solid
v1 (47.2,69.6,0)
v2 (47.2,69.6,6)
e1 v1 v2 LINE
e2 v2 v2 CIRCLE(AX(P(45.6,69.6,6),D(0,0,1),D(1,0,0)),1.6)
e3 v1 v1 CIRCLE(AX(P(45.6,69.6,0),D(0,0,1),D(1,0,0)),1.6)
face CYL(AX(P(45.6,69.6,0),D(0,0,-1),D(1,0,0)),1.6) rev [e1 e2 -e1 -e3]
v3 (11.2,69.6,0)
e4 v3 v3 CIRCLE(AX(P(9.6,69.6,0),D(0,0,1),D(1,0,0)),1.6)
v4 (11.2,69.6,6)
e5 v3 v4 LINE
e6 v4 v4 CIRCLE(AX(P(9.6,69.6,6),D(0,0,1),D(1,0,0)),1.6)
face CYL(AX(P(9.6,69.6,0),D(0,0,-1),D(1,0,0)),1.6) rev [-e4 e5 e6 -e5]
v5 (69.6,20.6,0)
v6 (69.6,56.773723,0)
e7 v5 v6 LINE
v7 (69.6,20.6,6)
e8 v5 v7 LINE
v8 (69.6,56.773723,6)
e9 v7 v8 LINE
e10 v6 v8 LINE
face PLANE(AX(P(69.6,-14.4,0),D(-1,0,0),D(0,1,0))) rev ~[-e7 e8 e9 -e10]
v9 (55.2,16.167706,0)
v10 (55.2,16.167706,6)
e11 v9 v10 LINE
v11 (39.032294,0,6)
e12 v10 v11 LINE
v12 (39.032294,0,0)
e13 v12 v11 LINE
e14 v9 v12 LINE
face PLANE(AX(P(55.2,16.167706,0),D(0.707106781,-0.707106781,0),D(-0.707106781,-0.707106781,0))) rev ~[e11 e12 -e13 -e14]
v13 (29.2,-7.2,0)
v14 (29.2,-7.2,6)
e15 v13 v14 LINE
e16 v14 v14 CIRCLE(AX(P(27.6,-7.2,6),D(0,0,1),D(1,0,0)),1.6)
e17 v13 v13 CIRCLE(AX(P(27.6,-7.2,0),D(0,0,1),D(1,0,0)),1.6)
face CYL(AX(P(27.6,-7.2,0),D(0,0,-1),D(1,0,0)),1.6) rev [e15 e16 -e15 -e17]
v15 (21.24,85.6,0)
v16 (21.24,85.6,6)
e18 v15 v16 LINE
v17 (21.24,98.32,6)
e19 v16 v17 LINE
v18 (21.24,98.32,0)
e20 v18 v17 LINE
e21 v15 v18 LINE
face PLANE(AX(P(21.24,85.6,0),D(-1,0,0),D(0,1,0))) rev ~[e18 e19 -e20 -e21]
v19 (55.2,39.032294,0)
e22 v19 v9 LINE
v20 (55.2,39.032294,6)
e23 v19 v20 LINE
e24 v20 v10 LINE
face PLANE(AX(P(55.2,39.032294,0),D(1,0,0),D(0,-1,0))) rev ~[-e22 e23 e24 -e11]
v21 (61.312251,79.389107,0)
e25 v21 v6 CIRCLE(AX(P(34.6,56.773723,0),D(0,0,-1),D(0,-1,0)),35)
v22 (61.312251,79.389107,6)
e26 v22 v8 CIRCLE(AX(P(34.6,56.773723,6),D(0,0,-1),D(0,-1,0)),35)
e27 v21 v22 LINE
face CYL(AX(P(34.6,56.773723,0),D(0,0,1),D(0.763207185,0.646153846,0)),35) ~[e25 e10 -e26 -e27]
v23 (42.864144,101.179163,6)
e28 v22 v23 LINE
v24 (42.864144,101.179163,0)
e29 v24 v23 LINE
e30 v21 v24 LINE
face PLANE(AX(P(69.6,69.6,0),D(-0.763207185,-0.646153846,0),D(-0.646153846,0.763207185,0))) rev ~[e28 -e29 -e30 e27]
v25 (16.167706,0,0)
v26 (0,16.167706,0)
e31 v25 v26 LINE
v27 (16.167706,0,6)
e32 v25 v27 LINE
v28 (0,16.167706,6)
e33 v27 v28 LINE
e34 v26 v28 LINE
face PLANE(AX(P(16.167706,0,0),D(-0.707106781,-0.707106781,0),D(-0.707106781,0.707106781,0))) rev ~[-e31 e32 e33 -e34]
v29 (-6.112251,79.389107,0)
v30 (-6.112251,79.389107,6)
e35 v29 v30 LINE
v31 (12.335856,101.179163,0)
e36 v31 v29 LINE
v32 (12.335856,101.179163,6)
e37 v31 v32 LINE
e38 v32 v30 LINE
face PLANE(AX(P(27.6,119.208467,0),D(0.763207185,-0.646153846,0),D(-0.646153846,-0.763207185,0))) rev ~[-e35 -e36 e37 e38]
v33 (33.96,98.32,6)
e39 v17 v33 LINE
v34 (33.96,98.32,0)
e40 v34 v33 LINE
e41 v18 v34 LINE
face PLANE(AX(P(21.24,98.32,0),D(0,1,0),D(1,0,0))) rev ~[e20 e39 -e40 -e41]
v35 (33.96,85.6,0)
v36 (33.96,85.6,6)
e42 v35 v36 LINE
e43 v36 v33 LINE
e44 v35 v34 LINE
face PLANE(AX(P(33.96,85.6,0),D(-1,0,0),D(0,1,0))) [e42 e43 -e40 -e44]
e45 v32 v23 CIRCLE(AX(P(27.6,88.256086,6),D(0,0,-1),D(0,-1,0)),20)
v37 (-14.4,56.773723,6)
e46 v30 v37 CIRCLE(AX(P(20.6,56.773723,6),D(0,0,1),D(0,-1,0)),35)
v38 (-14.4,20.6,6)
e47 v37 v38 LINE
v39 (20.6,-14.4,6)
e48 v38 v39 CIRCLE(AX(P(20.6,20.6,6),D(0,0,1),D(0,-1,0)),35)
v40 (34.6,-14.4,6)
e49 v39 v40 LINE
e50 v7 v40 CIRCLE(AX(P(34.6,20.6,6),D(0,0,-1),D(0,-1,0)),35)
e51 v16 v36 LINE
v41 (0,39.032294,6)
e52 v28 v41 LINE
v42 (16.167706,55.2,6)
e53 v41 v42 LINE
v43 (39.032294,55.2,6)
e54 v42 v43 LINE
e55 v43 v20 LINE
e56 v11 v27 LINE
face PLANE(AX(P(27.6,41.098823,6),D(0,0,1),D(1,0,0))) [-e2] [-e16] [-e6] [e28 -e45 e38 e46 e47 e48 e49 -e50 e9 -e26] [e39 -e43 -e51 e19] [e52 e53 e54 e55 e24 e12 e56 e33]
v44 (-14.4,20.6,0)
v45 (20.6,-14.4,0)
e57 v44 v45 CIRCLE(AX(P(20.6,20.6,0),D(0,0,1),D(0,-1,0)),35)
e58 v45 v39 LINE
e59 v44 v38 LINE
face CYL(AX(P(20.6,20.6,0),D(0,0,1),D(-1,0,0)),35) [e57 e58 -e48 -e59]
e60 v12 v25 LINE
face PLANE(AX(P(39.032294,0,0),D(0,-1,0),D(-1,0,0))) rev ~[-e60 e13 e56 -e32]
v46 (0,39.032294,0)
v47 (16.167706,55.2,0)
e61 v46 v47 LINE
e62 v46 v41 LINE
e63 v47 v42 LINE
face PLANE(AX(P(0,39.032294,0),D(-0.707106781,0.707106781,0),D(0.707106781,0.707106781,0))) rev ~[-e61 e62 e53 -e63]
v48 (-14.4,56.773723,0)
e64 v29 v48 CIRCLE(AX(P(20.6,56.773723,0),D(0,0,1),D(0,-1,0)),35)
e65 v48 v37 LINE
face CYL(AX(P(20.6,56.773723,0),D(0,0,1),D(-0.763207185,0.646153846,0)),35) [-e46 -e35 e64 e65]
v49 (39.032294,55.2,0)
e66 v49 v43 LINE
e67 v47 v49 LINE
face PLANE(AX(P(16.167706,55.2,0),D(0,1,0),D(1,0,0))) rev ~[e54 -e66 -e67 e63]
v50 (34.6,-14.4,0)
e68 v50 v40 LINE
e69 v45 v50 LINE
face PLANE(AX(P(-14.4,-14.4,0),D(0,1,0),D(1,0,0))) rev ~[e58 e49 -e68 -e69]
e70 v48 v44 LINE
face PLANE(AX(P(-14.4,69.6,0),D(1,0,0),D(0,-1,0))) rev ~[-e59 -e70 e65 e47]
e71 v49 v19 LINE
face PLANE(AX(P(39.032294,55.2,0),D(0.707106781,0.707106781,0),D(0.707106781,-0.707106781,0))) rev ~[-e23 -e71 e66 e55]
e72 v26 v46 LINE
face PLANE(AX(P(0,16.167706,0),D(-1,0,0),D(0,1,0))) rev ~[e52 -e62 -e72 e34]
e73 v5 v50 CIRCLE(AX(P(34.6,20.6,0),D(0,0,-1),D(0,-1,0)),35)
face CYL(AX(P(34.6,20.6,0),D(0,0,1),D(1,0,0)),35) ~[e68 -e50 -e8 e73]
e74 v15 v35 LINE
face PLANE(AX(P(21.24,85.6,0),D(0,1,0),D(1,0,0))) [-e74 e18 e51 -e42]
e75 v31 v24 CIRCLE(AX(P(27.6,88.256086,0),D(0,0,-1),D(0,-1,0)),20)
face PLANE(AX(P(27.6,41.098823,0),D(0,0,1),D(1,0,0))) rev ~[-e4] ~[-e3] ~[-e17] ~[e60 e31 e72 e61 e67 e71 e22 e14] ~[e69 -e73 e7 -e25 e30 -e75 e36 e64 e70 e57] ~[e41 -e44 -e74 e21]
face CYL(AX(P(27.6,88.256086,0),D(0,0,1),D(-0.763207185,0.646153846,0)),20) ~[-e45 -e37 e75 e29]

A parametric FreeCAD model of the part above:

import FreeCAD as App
import Part
import Sketcher
from FreeCAD import Vector


def edges_at(feature, points):
    """Names of the edges that pass closest to the given points."""
    edges = feature.Shape.Edges
    near = lambda p: min(range(len(edges)), key=lambda i: edges[i].distToShape(Part.Vertex(*p))[0])
    return sorted({f"Edge{near(p) + 1}" for p in points})

doc = App.newDocument("Part")
body = doc.addObject("PartDesign::Body", "Body")

# Sketch on XY plane
sketch1 = body.newObject("Sketcher::SketchObject", "Sketch")
sketch1.AttachmentSupport = (doc.getObject("XY_Plane"), [""])
sketch1.MapMode = "FlatFace"
sketch1.addGeometry([
    Part.LineSegment(Vector(27.6, 119.208467, 0), Vector(-14.4, 69.6, 0)),  # 0
    Part.LineSegment(Vector(-14.4, 69.6, 0), Vector(-14.4, -14.4, 0)),  # 1
    Part.LineSegment(Vector(-14.4, -14.4, 0), Vector(69.6, -14.4, 0)),  # 2
    Part.LineSegment(Vector(69.6, -14.4, 0), Vector(69.6, 69.6, 0)),  # 3
    Part.LineSegment(Vector(69.6, 69.6, 0), Vector(27.6, 119.208467, 0)),  # 4
    Part.Circle(Vector(27.6, -7.2, 0), Vector(0, 0, 1), 1.6),  # 5
    Part.LineSegment(Vector(39.032294, 0, 0), Vector(16.167706, 0, 0)),  # 6
    Part.LineSegment(Vector(16.167706, 0, 0), Vector(0, 16.167706, 0)),  # 7
    Part.LineSegment(Vector(0, 16.167706, 0), Vector(0, 39.032294, 0)),  # 8
    Part.LineSegment(Vector(0, 39.032294, 0), Vector(16.167706, 55.2, 0)),  # 9
    Part.LineSegment(Vector(16.167706, 55.2, 0), Vector(39.032294, 55.2, 0)),  # 10
    Part.LineSegment(Vector(39.032294, 55.2, 0), Vector(55.2, 39.032294, 0)),  # 11
    Part.LineSegment(Vector(55.2, 39.032294, 0), Vector(55.2, 16.167706, 0)),  # 12
    Part.LineSegment(Vector(55.2, 16.167706, 0), Vector(39.032294, 0, 0)),  # 13
    Part.Circle(Vector(9.6, 69.6, 0), Vector(0, 0, 1), 1.6),  # 14
    Part.Circle(Vector(45.6, 69.6, 0), Vector(0, 0, 1), 1.6),  # 15
    Part.LineSegment(Vector(33.96, 85.6, 0), Vector(21.24, 85.6, 0)),  # 16
    Part.LineSegment(Vector(21.24, 85.6, 0), Vector(21.24, 98.32, 0)),  # 17
    Part.LineSegment(Vector(21.24, 98.32, 0), Vector(33.96, 98.32, 0)),  # 18
    Part.LineSegment(Vector(33.96, 98.32, 0), Vector(33.96, 85.6, 0)),  # 19
], False)
sketch1.addConstraint([
    Sketcher.Constraint("Coincident", 0, 2, 1, 1),
    Sketcher.Constraint("Coincident", 1, 2, 2, 1),
    Sketcher.Constraint("Coincident", 2, 2, 3, 1),
    Sketcher.Constraint("Coincident", 3, 2, 4, 1),
    Sketcher.Constraint("Coincident", 4, 2, 0, 1),
    Sketcher.Constraint("Coincident", 6, 2, 7, 1),
    Sketcher.Constraint("Coincident", 7, 2, 8, 1),
    Sketcher.Constraint("Coincident", 8, 2, 9, 1),
    Sketcher.Constraint("Coincident", 9, 2, 10, 1),
    Sketcher.Constraint("Coincident", 10, 2, 11, 1),
    Sketcher.Constraint("Coincident", 11, 2, 12, 1),
    Sketcher.Constraint("Coincident", 12, 2, 13, 1),
    Sketcher.Constraint("Coincident", 13, 2, 6, 1),
    Sketcher.Constraint("Coincident", 16, 2, 17, 1),
    Sketcher.Constraint("Coincident", 17, 2, 18, 1),
    Sketcher.Constraint("Coincident", 18, 2, 19, 1),
    Sketcher.Constraint("Coincident", 19, 2, 16, 1),
    Sketcher.Constraint("Vertical", 1),
    Sketcher.Constraint("Horizontal", 2),
    Sketcher.Constraint("Vertical", 3),
    Sketcher.Constraint("Horizontal", 6),
    Sketcher.Constraint("Vertical", 8),
    Sketcher.Constraint("Horizontal", 10),
    Sketcher.Constraint("Vertical", 12),
    Sketcher.Constraint("Horizontal", 16),
    Sketcher.Constraint("Vertical", 17),
    Sketcher.Constraint("Horizontal", 18),
    Sketcher.Constraint("Vertical", 19),
    Sketcher.Constraint("Equal", 5, 14),
    Sketcher.Constraint("Equal", 14, 15),
    Sketcher.Constraint("PointOnObject", 6, 2, -1),
    Sketcher.Constraint("PointOnObject", 7, 2, -2),
    Sketcher.Constraint("Perpendicular", 7, 9),
    Sketcher.Constraint("Perpendicular", 9, 11),
    Sketcher.Constraint("Perpendicular", 11, 13),
    Sketcher.Constraint("Horizontal", 14, 3, 15, 3),
    Sketcher.Constraint("Horizontal", 15, 3, 0, 2),
    Sketcher.Constraint("Horizontal", 0, 2, 3, 2),
    Sketcher.Constraint("Horizontal", 8, 2, 11, 2),
    Sketcher.Constraint("Horizontal", 7, 2, 12, 2),
    Sketcher.Constraint("Vertical", 5, 3, 4, 2),
    Sketcher.Constraint("Vertical", 6, 2, 9, 2),
    Sketcher.Constraint("Vertical", 10, 2, 13, 2),
    Sketcher.Constraint("Equal", 2, 1),
    Sketcher.Constraint("Equal", 10, 8),
    Sketcher.Constraint("Equal", 18, 17),
    Sketcher.Constraint("Equal", 0, 4),
    Sketcher.Constraint("Diameter", 5, 3.2),
    Sketcher.Constraint("DistanceX", 2, 1, 2, 2, 84.0),
    Sketcher.Constraint("Distance", 0, 65.0),
    Sketcher.Constraint("DistanceX", 14, 3, 5, 3, 18.0),
    Sketcher.Constraint("DistanceX", 14, 3, 15, 3, 36.0),
    Sketcher.Constraint("DistanceY", 14, 3, 16, 2, 16.0),
    Sketcher.Constraint("DistanceX", 16, 2, 16, 1, 12.72),
    Sketcher.Constraint("DistanceX", -1, 1, 5, 3, 27.6),
    Sketcher.Constraint("DistanceY", 5, 3, -1, 1, 7.2),
    Sketcher.Constraint("DistanceY", -1, 1, 14, 3, 69.6),
    Sketcher.Constraint("DistanceY", -1, 1, 9, 2, 55.2),
    Sketcher.Constraint("DistanceX", -1, 1, 16, 2, 21.24),
    Sketcher.Constraint("DistanceX", 6, 2, 6, 1, 22.864588),
])
pad1 = body.newObject("PartDesign::Pad", "Pad")
pad1.Profile = sketch1
pad1.Length = 6
doc.recompute()

fillet = body.newObject("PartDesign::Fillet", "Fillet")
fillet.Base = (pad1, edges_at(pad1, [
    (69.6, -14.4, 3),
    (-14.4, -14.4, 3),
    (-14.4, 69.6, 3),
    (69.6, 69.6, 3),
]))
fillet.Radius = 35
doc.recompute()

fillet2 = body.newObject("PartDesign::Fillet", "Fillet001")
fillet2.Base = (fillet, edges_at(fillet, [(27.6, 119.208, 3)]))
fillet2.Radius = 20

doc.recompute()
